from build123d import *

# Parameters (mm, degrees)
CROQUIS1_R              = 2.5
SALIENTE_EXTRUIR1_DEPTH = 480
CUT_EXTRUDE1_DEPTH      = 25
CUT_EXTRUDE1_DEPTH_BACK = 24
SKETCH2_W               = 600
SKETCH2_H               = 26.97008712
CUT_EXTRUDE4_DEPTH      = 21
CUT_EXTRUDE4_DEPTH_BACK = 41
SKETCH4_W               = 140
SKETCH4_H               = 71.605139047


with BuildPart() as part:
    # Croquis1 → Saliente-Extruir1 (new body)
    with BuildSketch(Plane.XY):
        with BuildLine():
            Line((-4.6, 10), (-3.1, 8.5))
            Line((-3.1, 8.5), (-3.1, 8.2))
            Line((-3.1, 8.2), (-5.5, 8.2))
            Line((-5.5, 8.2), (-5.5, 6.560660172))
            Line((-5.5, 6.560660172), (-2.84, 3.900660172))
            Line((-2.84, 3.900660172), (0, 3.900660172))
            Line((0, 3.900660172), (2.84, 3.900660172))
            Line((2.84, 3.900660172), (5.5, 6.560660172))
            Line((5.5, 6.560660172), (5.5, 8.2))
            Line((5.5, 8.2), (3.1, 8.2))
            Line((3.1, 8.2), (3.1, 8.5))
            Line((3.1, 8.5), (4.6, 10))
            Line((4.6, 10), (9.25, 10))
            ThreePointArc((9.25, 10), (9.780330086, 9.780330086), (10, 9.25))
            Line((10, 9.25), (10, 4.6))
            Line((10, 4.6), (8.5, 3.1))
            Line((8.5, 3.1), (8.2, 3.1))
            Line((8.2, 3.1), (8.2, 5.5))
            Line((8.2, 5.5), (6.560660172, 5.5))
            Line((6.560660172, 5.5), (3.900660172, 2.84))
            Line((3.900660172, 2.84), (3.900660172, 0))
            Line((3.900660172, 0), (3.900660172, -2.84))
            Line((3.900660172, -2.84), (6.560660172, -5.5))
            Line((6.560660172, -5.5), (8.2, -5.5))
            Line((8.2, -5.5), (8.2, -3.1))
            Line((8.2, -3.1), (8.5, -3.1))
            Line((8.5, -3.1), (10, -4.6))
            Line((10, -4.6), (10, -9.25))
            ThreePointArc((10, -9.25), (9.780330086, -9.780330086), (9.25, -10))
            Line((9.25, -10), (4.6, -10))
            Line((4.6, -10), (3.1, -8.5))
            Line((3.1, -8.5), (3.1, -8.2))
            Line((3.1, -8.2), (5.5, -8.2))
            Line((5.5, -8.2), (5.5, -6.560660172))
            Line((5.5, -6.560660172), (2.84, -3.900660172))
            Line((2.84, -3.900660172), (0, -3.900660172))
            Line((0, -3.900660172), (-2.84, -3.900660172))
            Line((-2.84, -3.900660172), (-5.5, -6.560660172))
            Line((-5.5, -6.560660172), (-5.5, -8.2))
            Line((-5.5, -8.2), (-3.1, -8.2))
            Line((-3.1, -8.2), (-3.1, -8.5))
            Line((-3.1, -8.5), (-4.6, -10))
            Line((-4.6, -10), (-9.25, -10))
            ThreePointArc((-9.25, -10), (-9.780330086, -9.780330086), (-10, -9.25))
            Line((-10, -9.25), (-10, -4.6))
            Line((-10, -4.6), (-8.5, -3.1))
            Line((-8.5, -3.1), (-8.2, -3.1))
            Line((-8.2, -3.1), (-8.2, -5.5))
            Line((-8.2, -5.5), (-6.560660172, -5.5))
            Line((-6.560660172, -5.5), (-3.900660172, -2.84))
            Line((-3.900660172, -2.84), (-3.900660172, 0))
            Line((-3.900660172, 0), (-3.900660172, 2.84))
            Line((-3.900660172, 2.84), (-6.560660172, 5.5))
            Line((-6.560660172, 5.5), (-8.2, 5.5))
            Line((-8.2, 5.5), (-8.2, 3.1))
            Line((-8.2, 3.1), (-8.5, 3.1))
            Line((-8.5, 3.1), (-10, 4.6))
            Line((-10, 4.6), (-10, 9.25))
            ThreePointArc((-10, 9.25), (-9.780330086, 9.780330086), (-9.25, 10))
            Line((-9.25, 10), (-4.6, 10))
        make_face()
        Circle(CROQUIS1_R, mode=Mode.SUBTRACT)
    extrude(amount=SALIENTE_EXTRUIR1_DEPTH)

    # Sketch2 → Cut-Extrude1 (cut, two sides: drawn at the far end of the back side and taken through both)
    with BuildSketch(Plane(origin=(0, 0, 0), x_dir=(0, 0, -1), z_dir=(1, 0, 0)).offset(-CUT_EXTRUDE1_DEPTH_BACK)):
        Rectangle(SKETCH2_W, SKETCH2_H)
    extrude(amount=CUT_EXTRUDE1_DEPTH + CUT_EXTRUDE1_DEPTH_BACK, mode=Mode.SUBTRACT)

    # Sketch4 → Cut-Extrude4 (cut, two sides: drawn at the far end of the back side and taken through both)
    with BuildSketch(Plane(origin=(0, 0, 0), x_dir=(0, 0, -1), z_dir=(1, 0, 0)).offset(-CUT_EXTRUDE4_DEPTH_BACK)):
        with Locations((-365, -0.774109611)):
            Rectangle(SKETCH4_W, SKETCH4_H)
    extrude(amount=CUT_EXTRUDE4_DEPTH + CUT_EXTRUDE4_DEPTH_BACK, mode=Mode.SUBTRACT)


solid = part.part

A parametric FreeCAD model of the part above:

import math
import FreeCAD as App
import Part
import Sketcher
Q = App.Units.Quantity


def add_polygon(sketch, points):
    """Adds a closed chain of lines whose ends are joined by coincident constraints."""
    first, n = sketch.GeometryCount, len(points)
    for a, b in zip(points, points[1:] + points[:1]):
        sketch.addGeometry(Part.LineSegment(App.Vector(*a, 0), App.Vector(*b, 0)), False)
    for i in range(n):
        sketch.addConstraint(Sketcher.Constraint("Coincident", first + i, 2, first + (i + 1) % n, 1))

doc = App.newDocument("Part")
body = doc.addObject("PartDesign::Body", "Body")

# Sketch on XY plane
sketch1 = body.newObject("Sketcher::SketchObject", "Sketch")
sketch1.AttachmentSupport = (doc.getObject("XY_Plane"), [""])
sketch1.MapMode = "FlatFace"
sketch1.addGeometry(Part.LineSegment(App.Vector(-3.1, 8.5, 0), App.Vector(-4.6, 10, 0)), False)
sketch1.addGeometry(Part.LineSegment(App.Vector(-4.6, 10, 0), App.Vector(-9.25, 10, 0)), False)
sketch1.addGeometry(Part.ArcOfCircle(Part.Circle(App.Vector(-9.25, 9.25, 0), App.Vector(0, 0, 1), 0.75), math.radians(90), math.radians(180)), False)
sketch1.addGeometry(Part.LineSegment(App.Vector(-10, 9.25, 0), App.Vector(-10, 4.6, 0)), False)
sketch1.addGeometry(Part.LineSegment(App.Vector(-10, 4.6, 0), App.Vector(-8.5, 3.1, 0)), False)
sketch1.addGeometry(Part.LineSegment(App.Vector(-8.5, 3.1, 0), App.Vector(-8.2, 3.1, 0)), False)
sketch1.addGeometry(Part.LineSegment(App.Vector(-8.2, 3.1, 0), App.Vector(-8.2, 5.5, 0)), False)
sketch1.addGeometry(Part.LineSegment(App.Vector(-8.2, 5.5, 0), App.Vector(-6.56, 5.5, 0)), False)
sketch1.addGeometry(Part.LineSegment(App.Vector(-6.56, 5.5, 0), App.Vector(-3.9, 2.84, 0)), False)
sketch1.addGeometry(Part.LineSegment(App.Vector(-3.9, 2.84, 0), App.Vector(-3.9, -2.84, 0)), False)
sketch1.addGeometry(Part.LineSegment(App.Vector(-3.9, -2.84, 0), App.Vector(-6.56, -5.5, 0)), False)
sketch1.addGeometry(Part.LineSegment(App.Vector(-6.56, -5.5, 0), App.Vector(-8.2, -5.5, 0)), False)
sketch1.addGeometry(Part.LineSegment(App.Vector(-8.2, -5.5, 0), App.Vector(-8.2, -3.1, 0)), False)
sketch1.addGeometry(Part.LineSegment(App.Vector(-8.2, -3.1, 0), App.Vector(-8.5, -3.1, 0)), False)
sketch1.addGeometry(Part.LineSegment(App.Vector(-8.5, -3.1, 0), App.Vector(-10, -4.6, 0)), False)
sketch1.addGeometry(Part.LineSegment(App.Vector(-10, -4.6, 0), App.Vector(-10, -9.25, 0)), False)
sketch1.addGeometry(Part.ArcOfCircle(Part.Circle(App.Vector(-9.25, -9.25, 0), App.Vector(0, 0, 1), 0.75), math.radians(180), math.radians(270)), False)
sketch1.addGeometry(Part.LineSegment(App.Vector(-9.25, -10, 0), App.Vector(-4.6, -10, 0)), False)
sketch1.addGeometry(Part.LineSegment(App.Vector(-4.6, -10, 0), App.Vector(-3.1, -8.5, 0)), False)
sketch1.addGeometry(Part.LineSegment(App.Vector(-3.1, -8.5, 0), App.Vector(-3.1, -8.2, 0)), False)
sketch1.addGeometry(Part.LineSegment(App.Vector(-3.1, -8.2, 0), App.Vector(-5.5, -8.2, 0)), False)
sketch1.addGeometry(Part.LineSegment(App.Vector(-5.5, -8.2, 0), App.Vector(-5.5, -6.56, 0)), False)
sketch1.addGeometry(Part.LineSegment(App.Vector(-5.5, -6.56, 0), App.Vector(-2.84, -3.9, 0)), False)
sketch1.addGeometry(Part.LineSegment(App.Vector(-2.84, -3.9, 0), App.Vector(2.84, -3.9, 0)), False)
sketch1.addGeometry(Part.LineSegment(App.Vector(2.84, -3.9, 0), App.Vector(5.5, -6.56, 0)), False)
sketch1.addGeometry(Part.LineSegment(App.Vector(5.5, -6.56, 0), App.Vector(5.5, -8.2, 0)), False)
sketch1.addGeometry(Part.LineSegment(App.Vector(5.5, -8.2, 0), App.Vector(3.1, -8.2, 0)), False)
sketch1.addGeometry(Part.LineSegment(App.Vector(3.1, -8.2, 0), App.Vector(3.1, -8.5, 0)), False)
sketch1.addGeometry(Part.LineSegment(App.Vector(3.1, -8.5, 0), App.Vector(4.6, -10, 0)), False)
sketch1.addGeometry(Part.LineSegment(App.Vector(4.6, -10, 0), App.Vector(9.25, -10, 0)), False)
sketch1.addGeometry(Part.ArcOfCircle(Part.Circle(App.Vector(9.25, -9.25, 0), App.Vector(0, 0, 1), 0.75), math.radians(-90), math.radians(0)), False)
sketch1.addGeometry(Part.LineSegment(App.Vector(10, -9.25, 0), App.Vector(10, -4.6, 0)), False)
sketch1.addGeometry(Part.LineSegment(App.Vector(10, -4.6, 0), App.Vector(8.5, -3.1, 0)), False)
sketch1.addGeometry(Part.LineSegment(App.Vector(8.5, -3.1, 0), App.Vector(8.2, -3.1, 0)), False)
sketch1.addGeometry(Part.LineSegment(App.Vector(8.2, -3.1, 0), App.Vector(8.2, -5.5, 0)), False)
sketch1.addGeometry(Part.LineSegment(App.Vector(8.2, -5.5, 0), App.Vector(6.56, -5.5, 0)), False)
sketch1.addGeometry(Part.LineSegment(App.Vector(6.56, -5.5, 0), App.Vector(3.9, -2.84, 0)), False)
sketch1.addGeometry(Part.LineSegment(App.Vector(3.9, -2.84, 0), App.Vector(3.9, 2.84, 0)), False)
sketch1.addGeometry(Part.LineSegment(App.Vector(3.9, 2.84, 0), App.Vector(6.56, 5.5, 0)), False)
sketch1.addGeometry(Part.LineSegment(App.Vector(6.56, 5.5, 0), App.Vector(8.2, 5.5, 0)), False)
sketch1.addGeometry(Part.LineSegment(App.Vector(8.2, 5.5, 0), App.Vector(8.2, 3.1, 0)), False)
sketch1.addGeometry(Part.LineSegment(App.Vector(8.2, 3.1, 0), App.Vector(8.5, 3.1, 0)), False)
sketch1.addGeometry(Part.LineSegment(App.Vector(8.5, 3.1, 0), App.Vector(10, 4.6, 0)), False)
sketch1.addGeometry(Part.LineSegment(App.Vector(10, 4.6, 0), App.Vector(10, 9.25, 0)), False)
sketch1.addGeometry(Part.ArcOfCircle(Part.Circle(App.Vector(9.25, 9.25, 0), App.Vector(0, 0, 1), 0.75), math.radians(0), math.radians(90)), False)
sketch1.addGeometry(Part.LineSegment(App.Vector(9.25, 10, 0), App.Vector(4.6, 10, 0)), False)
sketch1.addGeometry(Part.LineSegment(App.Vector(4.6, 10, 0), App.Vector(3.1, 8.5, 0)), False)
sketch1.addGeometry(Part.LineSegment(App.Vector(3.1, 8.5, 0), App.Vector(3.1, 8.2, 0)), False)
sketch1.addGeometry(Part.LineSegment(App.Vector(3.1, 8.2, 0), App.Vector(5.5, 8.2, 0)), False)
sketch1.addGeometry(Part.LineSegment(App.Vector(5.5, 8.2, 0), App.Vector(5.5, 6.56, 0)), False)
sketch1.addGeometry(Part.LineSegment(App.Vector(5.5, 6.56, 0), App.Vector(2.84, 3.9, 0)), False)
sketch1.addGeometry(Part.LineSegment(App.Vector(2.84, 3.9, 0), App.Vector(-2.84, 3.9, 0)), False)
sketch1.addGeometry(Part.LineSegment(App.Vector(-2.84, 3.9, 0), App.Vector(-5.5, 6.56, 0)), False)
sketch1.addGeometry(Part.LineSegment(App.Vector(-5.5, 6.56, 0), App.Vector(-5.5, 8.2, 0)), False)
sketch1.addGeometry(Part.LineSegment(App.Vector(-5.5, 8.2, 0), App.Vector(-3.1, 8.2, 0)), False)
sketch1.addGeometry(Part.LineSegment(App.Vector(-3.1, 8.2, 0), App.Vector(-3.1, 8.5, 0)), False)
sketch1.addGeometry(Part.Circle(App.Vector(0, 0, 0), App.Vector(0, 0, 1), 2.5), False)
sketch1.addConstraint(Sketcher.Constraint("Coincident", 0, 2, 1, 1))
sketch1.addConstraint(Sketcher.Constraint("Tangent", 1, 2, 2, 1))
sketch1.addConstraint(Sketcher.Constraint("Tangent", 2, 2, 3, 1))
sketch1.addConstraint(Sketcher.Constraint("Coincident", 3, 2, 4, 1))
sketch1.addConstraint(Sketcher.Constraint("Coincident", 4, 2, 5, 1))
sketch1.addConstraint(Sketcher.Constraint("Coincident", 5, 2, 6, 1))
sketch1.addConstraint(Sketcher.Constraint("Coincident", 6, 2, 7, 1))
sketch1.addConstraint(Sketcher.Constraint("Coincident", 7, 2, 8, 1))
sketch1.addConstraint(Sketcher.Constraint("Coincident", 8, 2, 9, 1))
sketch1.addConstraint(Sketcher.Constraint("Coincident", 9, 2, 10, 1))
sketch1.addConstraint(Sketcher.Constraint("Coincident", 10, 2, 11, 1))
sketch1.addConstraint(Sketcher.Constraint("Coincident", 11, 2, 12, 1))
sketch1.addConstraint(Sketcher.Constraint("Coincident", 12, 2, 13, 1))
sketch1.addConstraint(Sketcher.Constraint("Coincident", 13, 2, 14, 1))
sketch1.addConstraint(Sketcher.Constraint("Coincident", 14, 2, 15, 1))
sketch1.addConstraint(Sketcher.Constraint("Tangent", 15, 2, 16, 1))
sketch1.addConstraint(Sketcher.Constraint("Tangent", 16, 2, 17, 1))
sketch1.addConstraint(Sketcher.Constraint("Coincident", 17, 2, 18, 1))
sketch1.addConstraint(Sketcher.Constraint("Coincident", 18, 2, 19, 1))
sketch1.addConstraint(Sketcher.Constraint("Coincident", 19, 2, 20, 1))
sketch1.addConstraint(Sketcher.Constraint("Coincident", 20, 2, 21, 1))
sketch1.addConstraint(Sketcher.Constraint("Coincident", 21, 2, 22, 1))
sketch1.addConstraint(Sketcher.Constraint("Coincident", 22, 2, 23, 1))
sketch1.addConstraint(Sketcher.Constraint("Coincident", 23, 2, 24, 1))
sketch1.addConstraint(Sketcher.Constraint("Coincident", 24, 2, 25, 1))
sketch1.addConstraint(Sketcher.Constraint("Coincident", 25, 2, 26, 1))
sketch1.addConstraint(Sketcher.Constraint("Coincident", 26, 2, 27, 1))
sketch1.addConstraint(Sketcher.Constraint("Coincident", 27, 2, 28, 1))
sketch1.addConstraint(Sketcher.Constraint("Coincident", 28, 2, 29, 1))
sketch1.addConstraint(Sketcher.Constraint("Tangent", 29, 2, 30, 1))
sketch1.addConstraint(Sketcher.Constraint("Tangent", 30, 2, 31, 1))
sketch1.addConstraint(Sketcher.Constraint("Coincident", 31, 2, 32, 1))
sketch1.addConstraint(Sketcher.Constraint("Coincident", 32, 2, 33, 1))
sketch1.addConstraint(Sketcher.Constraint("Coincident", 33, 2, 34, 1))
sketch1.addConstraint(Sketcher.Constraint("Coincident", 34, 2, 35, 1))
sketch1.addConstraint(Sketcher.Constraint("Coincident", 35, 2, 36, 1))
sketch1.addConstraint(Sketcher.Constraint("Coincident", 36, 2, 37, 1))
sketch1.addConstraint(Sketcher.Constraint("Coincident", 37, 2, 38, 1))
sketch1.addConstraint(Sketcher.Constraint("Coincident", 38, 2, 39, 1))
sketch1.addConstraint(Sketcher.Constraint("Coincident", 39, 2, 40, 1))
sketch1.addConstraint(Sketcher.Constraint("Coincident", 40, 2, 41, 1))
sketch1.addConstraint(Sketcher.Constraint("Coincident", 41, 2, 42, 1))
sketch1.addConstraint(Sketcher.Constraint("Coincident", 42, 2, 43, 1))
sketch1.addConstraint(Sketcher.Constraint("Tangent", 43, 2, 44, 1))
sketch1.addConstraint(Sketcher.Constraint("Tangent", 44, 2, 45, 1))
sketch1.addConstraint(Sketcher.Constraint("Coincident", 45, 2, 46, 1))
sketch1.addConstraint(Sketcher.Constraint("Coincident", 46, 2, 47, 1))
sketch1.addConstraint(Sketcher.Constraint("Coincident", 47, 2, 48, 1))
sketch1.addConstraint(Sketcher.Constraint("Coincident", 48, 2, 49, 1))
sketch1.addConstraint(Sketcher.Constraint("Coincident", 49, 2, 50, 1))
sketch1.addConstraint(Sketcher.Constraint("Coincident", 50, 2, 51, 1))
sketch1.addConstraint(Sketcher.Constraint("Coincident", 51, 2, 52, 1))
sketch1.addConstraint(Sketcher.Constraint("Coincident", 52, 2, 53, 1))
sketch1.addConstraint(Sketcher.Constraint("Coincident", 53, 2, 54, 1))
sketch1.addConstraint(Sketcher.Constraint("Coincident", 54, 2, 55, 1))
sketch1.addConstraint(Sketcher.Constraint("Coincident", 55, 2, 0, 1))
sketch1.addConstraint(Sketcher.Constraint("Horizontal", 1))
sketch1.addConstraint(Sketcher.Constraint("Vertical", 3))
sketch1.addConstraint(Sketcher.Constraint("Horizontal", 5))
sketch1.addConstraint(Sketcher.Constraint("Vertical", 6))
sketch1.addConstraint(Sketcher.Constraint("Horizontal", 7))
sketch1.addConstraint(Sketcher.Constraint("Vertical", 9))
sketch1.addConstraint(Sketcher.Constraint("Horizontal", 11))
sketch1.addConstraint(Sketcher.Constraint("Vertical", 12))
sketch1.addConstraint(Sketcher.Constraint("Horizontal", 13))
sketch1.addConstraint(Sketcher.Constraint("Vertical", 15))
sketch1.addConstraint(Sketcher.Constraint("Horizontal", 17))
sketch1.addConstraint(Sketcher.Constraint("Vertical", 19))
sketch1.addConstraint(Sketcher.Constraint("Horizontal", 20))
sketch1.addConstraint(Sketcher.Constraint("Vertical", 21))
sketch1.addConstraint(Sketcher.Constraint("Horizontal", 23))
sketch1.addConstraint(Sketcher.Constraint("Vertical", 25))
sketch1.addConstraint(Sketcher.Constraint("Horizontal", 26))
sketch1.addConstraint(Sketcher.Constraint("Vertical", 27))
sketch1.addConstraint(Sketcher.Constraint("Horizontal", 29))
sketch1.addConstraint(Sketcher.Constraint("Vertical", 31))
sketch1.addConstraint(Sketcher.Constraint("Horizontal", 33))
sketch1.addConstraint(Sketcher.Constraint("Vertical", 34))
sketch1.addConstraint(Sketcher.Constraint("Horizontal", 35))
sketch1.addConstraint(Sketcher.Constraint("Vertical", 37))
sketch1.addConstraint(Sketcher.Constraint("Horizontal", 39))
sketch1.addConstraint(Sketcher.Constraint("Vertical", 40))
sketch1.addConstraint(Sketcher.Constraint("Horizontal", 41))
sketch1.addConstraint(Sketcher.Constraint("Vertical", 43))
sketch1.addConstraint(Sketcher.Constraint("Horizontal", 45))
sketch1.addConstraint(Sketcher.Constraint("Vertical", 47))
sketch1.addConstraint(Sketcher.Constraint("Horizontal", 48))
sketch1.addConstraint(Sketcher.Constraint("Vertical", 49))
sketch1.addConstraint(Sketcher.Constraint("Horizontal", 51))
sketch1.addConstraint(Sketcher.Constraint("Vertical", 53))
sketch1.addConstraint(Sketcher.Constraint("Horizontal", 54))
sketch1.addConstraint(Sketcher.Constraint("Vertical", 55))
sketch1.addConstraint(Sketcher.Constraint("Coincident", 56, 3, -1, 1))
sketch1.addConstraint(Sketcher.Constraint("Equal", 2, 16))
sketch1.addConstraint(Sketcher.Constraint("Equal", 16, 30))
sketch1.addConstraint(Sketcher.Constraint("Equal", 30, 44))
sketch1.addConstraint(Sketcher.Constraint("Symmetric", 2, 3, 30, 3, -1, 1))
sketch1.addConstraint(Sketcher.Constraint("Symmetric", 16, 3, 44, 3, -1, 1))
sketch1.addConstraint(Sketcher.Constraint("Symmetric", 4, 2, 32, 2, -1, 1))
sketch1.addConstraint(Sketcher.Constraint("Symmetric", 6, 2, 34, 2, -1, 1))
sketch1.addConstraint(Sketcher.Constraint("Symmetric", 8, 2, 36, 2, -1, 1))
sketch1.addConstraint(Sketcher.Constraint("Symmetric", 10, 2, 38, 2, -1, 1))
sketch1.addConstraint(Sketcher.Constraint("Symmetric", 12, 2, 40, 2, -1, 1))
sketch1.addConstraint(Sketcher.Constraint("Symmetric", 18, 2, 46, 2, -1, 1))
sketch1.addConstraint(Sketcher.Constraint("Symmetric", 20, 2, 48, 2, -1, 1))
sketch1.addConstraint(Sketcher.Constraint("Symmetric", 22, 2, 50, 2, -1, 1))
sketch1.addConstraint(Sketcher.Constraint("Symmetric", 24, 2, 52, 2, -1, 1))
sketch1.addConstraint(Sketcher.Constraint("Symmetric", 26, 2, 54, 2, -1, 1))
sketch1.addConstraint(Sketcher.Constraint("Symmetric", 16, 3, 30, 3, -2))
sketch1.addConstraint(Sketcher.Constraint("Symmetric", 21, 2, 24, 2, -2))
sketch1.addConstraint(Sketcher.Constraint("Symmetric", 19, 2, 26, 2, -2))
sketch1.addConstraint(Sketcher.Constraint("Symmetric", 13, 2, 32, 2, -2))
sketch1.addConstraint(Sketcher.Constraint("Symmetric", 11, 2, 34, 2, -2))
sketch1.addConstraint(Sketcher.Constraint("Parallel", 0, 4))
sketch1.addConstraint(Sketcher.Constraint("Parallel", 4, 8))
sketch1.addConstraint(Sketcher.Constraint("Perpendicular", 8, 10))
sketch1.addConstraint(Sketcher.Constraint("Parallel", 10, 14))
sketch1.addConstraint(Sketcher.Constraint("Parallel", 14, 18))
sketch1.addConstraint(Sketcher.Constraint("Parallel", 18, 22))
sketch1.addConstraint(Sketcher.Constraint("Perpendicular", 22, 24))
sketch1.addConstraint(Sketcher.Constraint("Parallel", 24, 28))
sketch1.addConstraint(Sketcher.Constraint("Parallel", 28, 32))
sketch1.addConstraint(Sketcher.Constraint("Parallel", 32, 36))
sketch1.addConstraint(Sketcher.Constraint("Perpendicular", 36, 38))
sketch1.addConstraint(Sketcher.Constraint("Parallel", 38, 42))
sketch1.addConstraint(Sketcher.Constraint("Parallel", 42, 46))
sketch1.addConstraint(Sketcher.Constraint("Parallel", 46, 50))
sketch1.addConstraint(Sketcher.Constraint("Perpendicular", 50, 52))
sketch1.addConstraint(Sketcher.Constraint("Horizontal", 18, 2, 27, 2))
sketch1.addConstraint(Sketcher.Constraint("Horizontal", 14, 2, 31, 2))
sketch1.addConstraint(Sketcher.Constraint("Horizontal", 9, 2, 36, 2))
sketch1.addConstraint(Sketcher.Constraint("Horizontal", 3, 2, 42, 2))
sketch1.addConstraint(Sketcher.Constraint("Horizontal", 46, 2, 55, 2))
sketch1.addConstraint(Sketcher.Constraint("Equal", 45, 3))
sketch1.addConstraint(Sketcher.Constraint("Equal", 54, 6))
sketch1.addConstraint(Sketcher.Constraint("Equal", 51, 9))
sketch1.addConstraint(Sketcher.Constraint("Equal", 41, 19))
sketch1.addConstraint(Sketcher.Constraint("Equal", 39, 21))
sketch1.addConstraint(Sketcher.Constraint("Equal", 0, 4))
sketch1.addConstraint(Sketcher.Constraint("Equal", 10, 22))
sketch1.addConstraint(Sketcher.Constraint("Diameter", 56, Q("5 mm")))
sketch1.addConstraint(Sketcher.Constraint("Radius", 2, Q("0.75 mm")))
sketch1.addConstraint(Sketcher.Constraint("DistanceX", 5, 1, 5, 2, Q("0.3 mm")))
sketch1.addConstraint(Sketcher.Constraint("DistanceX", 20, 2, 20, 1, Q("2.4 mm")))
sketch1.addConstraint(Sketcher.Constraint("DistanceY", -1, 1, 0, 2, Q("10 mm")))
sketch1.addConstraint(Sketcher.Constraint("DistanceX", 1, 2, 1, 1, Q("4.65 mm")))
sketch1.addConstraint(Sketcher.Constraint("DistanceX", 23, 1, 23, 2, Q("5.68 mm")))
sketch1.addConstraint(Sketcher.Constraint("DistanceX", 4, 2, -1, 1, Q("8.5 mm")))
sketch1.addConstraint(Sketcher.Constraint("DistanceX", 7, 1, 7, 2, Q("1.63934 mm")))
pad1 = body.newObject("PartDesign::Pad", "Pad")
pad1.Profile = sketch1
pad1.Length = 480

# Sketch on YZ plane
sketch2 = body.newObject("Sketcher::SketchObject", "Sketch001")
sketch2.AttachmentSupport = (doc.getObject("YZ_Plane"), [""])
sketch2.MapMode = "FlatFace"
add_polygon(sketch2, [(13, 300), (-13, 300), (-13, -300), (13, -300)])  # lines 0-3
sketch2.addConstraint(Sketcher.Constraint("Horizontal", 0))
sketch2.addConstraint(Sketcher.Constraint("Vertical", 1))
sketch2.addConstraint(Sketcher.Constraint("Horizontal", 2))
sketch2.addConstraint(Sketcher.Constraint("Vertical", 3))
sketch2.addConstraint(Sketcher.Constraint("Symmetric", 0, 2, 2, 2, -1, 1))
sketch2.addConstraint(Sketcher.Constraint("DistanceY", 1, 2, 1, 1, Q("600 mm")))
sketch2.addConstraint(Sketcher.Constraint("DistanceX", 0, 2, 0, 1, Q("26.970087 mm")))
pocket1 = body.newObject("PartDesign::Pocket", "Pocket")
pocket1.Profile = sketch2
pocket1.Type = "ThroughAll"
pocket1.Midplane = True

# Sketch on YZ plane
sketch3 = body.newObject("Sketcher::SketchObject", "Sketch002")
sketch3.AttachmentSupport = (doc.getObject("YZ_Plane"), [""])
sketch3.MapMode = "FlatFace"
add_polygon(sketch3, [(35, 435), (-37, 435), (-37, 295), (35, 295)])  # lines 0-3
sketch3.addConstraint(Sketcher.Constraint("Horizontal", 0))
sketch3.addConstraint(Sketcher.Constraint("Vertical", 1))
sketch3.addConstraint(Sketcher.Constraint("Horizontal", 2))
sketch3.addConstraint(Sketcher.Constraint("Vertical", 3))
sketch3.addConstraint(Sketcher.Constraint("DistanceY", 1, 2, 1, 1, Q("140 mm")))
sketch3.addConstraint(Sketcher.Constraint("DistanceY", -1, 1, 0, 2, Q("435 mm")))
sketch3.addConstraint(Sketcher.Constraint("DistanceX", 0, 2, 0, 1, Q("71.605139 mm")))
sketch3.addConstraint(Sketcher.Constraint("DistanceX", 0, 2, -1, 1, Q("36.576679 mm")))
pocket2 = body.newObject("PartDesign::Pocket", "Pocket001")
pocket2.Profile = sketch3
pocket2.Type = "ThroughAll"
pocket2.Midplane = True

doc.recompute()
